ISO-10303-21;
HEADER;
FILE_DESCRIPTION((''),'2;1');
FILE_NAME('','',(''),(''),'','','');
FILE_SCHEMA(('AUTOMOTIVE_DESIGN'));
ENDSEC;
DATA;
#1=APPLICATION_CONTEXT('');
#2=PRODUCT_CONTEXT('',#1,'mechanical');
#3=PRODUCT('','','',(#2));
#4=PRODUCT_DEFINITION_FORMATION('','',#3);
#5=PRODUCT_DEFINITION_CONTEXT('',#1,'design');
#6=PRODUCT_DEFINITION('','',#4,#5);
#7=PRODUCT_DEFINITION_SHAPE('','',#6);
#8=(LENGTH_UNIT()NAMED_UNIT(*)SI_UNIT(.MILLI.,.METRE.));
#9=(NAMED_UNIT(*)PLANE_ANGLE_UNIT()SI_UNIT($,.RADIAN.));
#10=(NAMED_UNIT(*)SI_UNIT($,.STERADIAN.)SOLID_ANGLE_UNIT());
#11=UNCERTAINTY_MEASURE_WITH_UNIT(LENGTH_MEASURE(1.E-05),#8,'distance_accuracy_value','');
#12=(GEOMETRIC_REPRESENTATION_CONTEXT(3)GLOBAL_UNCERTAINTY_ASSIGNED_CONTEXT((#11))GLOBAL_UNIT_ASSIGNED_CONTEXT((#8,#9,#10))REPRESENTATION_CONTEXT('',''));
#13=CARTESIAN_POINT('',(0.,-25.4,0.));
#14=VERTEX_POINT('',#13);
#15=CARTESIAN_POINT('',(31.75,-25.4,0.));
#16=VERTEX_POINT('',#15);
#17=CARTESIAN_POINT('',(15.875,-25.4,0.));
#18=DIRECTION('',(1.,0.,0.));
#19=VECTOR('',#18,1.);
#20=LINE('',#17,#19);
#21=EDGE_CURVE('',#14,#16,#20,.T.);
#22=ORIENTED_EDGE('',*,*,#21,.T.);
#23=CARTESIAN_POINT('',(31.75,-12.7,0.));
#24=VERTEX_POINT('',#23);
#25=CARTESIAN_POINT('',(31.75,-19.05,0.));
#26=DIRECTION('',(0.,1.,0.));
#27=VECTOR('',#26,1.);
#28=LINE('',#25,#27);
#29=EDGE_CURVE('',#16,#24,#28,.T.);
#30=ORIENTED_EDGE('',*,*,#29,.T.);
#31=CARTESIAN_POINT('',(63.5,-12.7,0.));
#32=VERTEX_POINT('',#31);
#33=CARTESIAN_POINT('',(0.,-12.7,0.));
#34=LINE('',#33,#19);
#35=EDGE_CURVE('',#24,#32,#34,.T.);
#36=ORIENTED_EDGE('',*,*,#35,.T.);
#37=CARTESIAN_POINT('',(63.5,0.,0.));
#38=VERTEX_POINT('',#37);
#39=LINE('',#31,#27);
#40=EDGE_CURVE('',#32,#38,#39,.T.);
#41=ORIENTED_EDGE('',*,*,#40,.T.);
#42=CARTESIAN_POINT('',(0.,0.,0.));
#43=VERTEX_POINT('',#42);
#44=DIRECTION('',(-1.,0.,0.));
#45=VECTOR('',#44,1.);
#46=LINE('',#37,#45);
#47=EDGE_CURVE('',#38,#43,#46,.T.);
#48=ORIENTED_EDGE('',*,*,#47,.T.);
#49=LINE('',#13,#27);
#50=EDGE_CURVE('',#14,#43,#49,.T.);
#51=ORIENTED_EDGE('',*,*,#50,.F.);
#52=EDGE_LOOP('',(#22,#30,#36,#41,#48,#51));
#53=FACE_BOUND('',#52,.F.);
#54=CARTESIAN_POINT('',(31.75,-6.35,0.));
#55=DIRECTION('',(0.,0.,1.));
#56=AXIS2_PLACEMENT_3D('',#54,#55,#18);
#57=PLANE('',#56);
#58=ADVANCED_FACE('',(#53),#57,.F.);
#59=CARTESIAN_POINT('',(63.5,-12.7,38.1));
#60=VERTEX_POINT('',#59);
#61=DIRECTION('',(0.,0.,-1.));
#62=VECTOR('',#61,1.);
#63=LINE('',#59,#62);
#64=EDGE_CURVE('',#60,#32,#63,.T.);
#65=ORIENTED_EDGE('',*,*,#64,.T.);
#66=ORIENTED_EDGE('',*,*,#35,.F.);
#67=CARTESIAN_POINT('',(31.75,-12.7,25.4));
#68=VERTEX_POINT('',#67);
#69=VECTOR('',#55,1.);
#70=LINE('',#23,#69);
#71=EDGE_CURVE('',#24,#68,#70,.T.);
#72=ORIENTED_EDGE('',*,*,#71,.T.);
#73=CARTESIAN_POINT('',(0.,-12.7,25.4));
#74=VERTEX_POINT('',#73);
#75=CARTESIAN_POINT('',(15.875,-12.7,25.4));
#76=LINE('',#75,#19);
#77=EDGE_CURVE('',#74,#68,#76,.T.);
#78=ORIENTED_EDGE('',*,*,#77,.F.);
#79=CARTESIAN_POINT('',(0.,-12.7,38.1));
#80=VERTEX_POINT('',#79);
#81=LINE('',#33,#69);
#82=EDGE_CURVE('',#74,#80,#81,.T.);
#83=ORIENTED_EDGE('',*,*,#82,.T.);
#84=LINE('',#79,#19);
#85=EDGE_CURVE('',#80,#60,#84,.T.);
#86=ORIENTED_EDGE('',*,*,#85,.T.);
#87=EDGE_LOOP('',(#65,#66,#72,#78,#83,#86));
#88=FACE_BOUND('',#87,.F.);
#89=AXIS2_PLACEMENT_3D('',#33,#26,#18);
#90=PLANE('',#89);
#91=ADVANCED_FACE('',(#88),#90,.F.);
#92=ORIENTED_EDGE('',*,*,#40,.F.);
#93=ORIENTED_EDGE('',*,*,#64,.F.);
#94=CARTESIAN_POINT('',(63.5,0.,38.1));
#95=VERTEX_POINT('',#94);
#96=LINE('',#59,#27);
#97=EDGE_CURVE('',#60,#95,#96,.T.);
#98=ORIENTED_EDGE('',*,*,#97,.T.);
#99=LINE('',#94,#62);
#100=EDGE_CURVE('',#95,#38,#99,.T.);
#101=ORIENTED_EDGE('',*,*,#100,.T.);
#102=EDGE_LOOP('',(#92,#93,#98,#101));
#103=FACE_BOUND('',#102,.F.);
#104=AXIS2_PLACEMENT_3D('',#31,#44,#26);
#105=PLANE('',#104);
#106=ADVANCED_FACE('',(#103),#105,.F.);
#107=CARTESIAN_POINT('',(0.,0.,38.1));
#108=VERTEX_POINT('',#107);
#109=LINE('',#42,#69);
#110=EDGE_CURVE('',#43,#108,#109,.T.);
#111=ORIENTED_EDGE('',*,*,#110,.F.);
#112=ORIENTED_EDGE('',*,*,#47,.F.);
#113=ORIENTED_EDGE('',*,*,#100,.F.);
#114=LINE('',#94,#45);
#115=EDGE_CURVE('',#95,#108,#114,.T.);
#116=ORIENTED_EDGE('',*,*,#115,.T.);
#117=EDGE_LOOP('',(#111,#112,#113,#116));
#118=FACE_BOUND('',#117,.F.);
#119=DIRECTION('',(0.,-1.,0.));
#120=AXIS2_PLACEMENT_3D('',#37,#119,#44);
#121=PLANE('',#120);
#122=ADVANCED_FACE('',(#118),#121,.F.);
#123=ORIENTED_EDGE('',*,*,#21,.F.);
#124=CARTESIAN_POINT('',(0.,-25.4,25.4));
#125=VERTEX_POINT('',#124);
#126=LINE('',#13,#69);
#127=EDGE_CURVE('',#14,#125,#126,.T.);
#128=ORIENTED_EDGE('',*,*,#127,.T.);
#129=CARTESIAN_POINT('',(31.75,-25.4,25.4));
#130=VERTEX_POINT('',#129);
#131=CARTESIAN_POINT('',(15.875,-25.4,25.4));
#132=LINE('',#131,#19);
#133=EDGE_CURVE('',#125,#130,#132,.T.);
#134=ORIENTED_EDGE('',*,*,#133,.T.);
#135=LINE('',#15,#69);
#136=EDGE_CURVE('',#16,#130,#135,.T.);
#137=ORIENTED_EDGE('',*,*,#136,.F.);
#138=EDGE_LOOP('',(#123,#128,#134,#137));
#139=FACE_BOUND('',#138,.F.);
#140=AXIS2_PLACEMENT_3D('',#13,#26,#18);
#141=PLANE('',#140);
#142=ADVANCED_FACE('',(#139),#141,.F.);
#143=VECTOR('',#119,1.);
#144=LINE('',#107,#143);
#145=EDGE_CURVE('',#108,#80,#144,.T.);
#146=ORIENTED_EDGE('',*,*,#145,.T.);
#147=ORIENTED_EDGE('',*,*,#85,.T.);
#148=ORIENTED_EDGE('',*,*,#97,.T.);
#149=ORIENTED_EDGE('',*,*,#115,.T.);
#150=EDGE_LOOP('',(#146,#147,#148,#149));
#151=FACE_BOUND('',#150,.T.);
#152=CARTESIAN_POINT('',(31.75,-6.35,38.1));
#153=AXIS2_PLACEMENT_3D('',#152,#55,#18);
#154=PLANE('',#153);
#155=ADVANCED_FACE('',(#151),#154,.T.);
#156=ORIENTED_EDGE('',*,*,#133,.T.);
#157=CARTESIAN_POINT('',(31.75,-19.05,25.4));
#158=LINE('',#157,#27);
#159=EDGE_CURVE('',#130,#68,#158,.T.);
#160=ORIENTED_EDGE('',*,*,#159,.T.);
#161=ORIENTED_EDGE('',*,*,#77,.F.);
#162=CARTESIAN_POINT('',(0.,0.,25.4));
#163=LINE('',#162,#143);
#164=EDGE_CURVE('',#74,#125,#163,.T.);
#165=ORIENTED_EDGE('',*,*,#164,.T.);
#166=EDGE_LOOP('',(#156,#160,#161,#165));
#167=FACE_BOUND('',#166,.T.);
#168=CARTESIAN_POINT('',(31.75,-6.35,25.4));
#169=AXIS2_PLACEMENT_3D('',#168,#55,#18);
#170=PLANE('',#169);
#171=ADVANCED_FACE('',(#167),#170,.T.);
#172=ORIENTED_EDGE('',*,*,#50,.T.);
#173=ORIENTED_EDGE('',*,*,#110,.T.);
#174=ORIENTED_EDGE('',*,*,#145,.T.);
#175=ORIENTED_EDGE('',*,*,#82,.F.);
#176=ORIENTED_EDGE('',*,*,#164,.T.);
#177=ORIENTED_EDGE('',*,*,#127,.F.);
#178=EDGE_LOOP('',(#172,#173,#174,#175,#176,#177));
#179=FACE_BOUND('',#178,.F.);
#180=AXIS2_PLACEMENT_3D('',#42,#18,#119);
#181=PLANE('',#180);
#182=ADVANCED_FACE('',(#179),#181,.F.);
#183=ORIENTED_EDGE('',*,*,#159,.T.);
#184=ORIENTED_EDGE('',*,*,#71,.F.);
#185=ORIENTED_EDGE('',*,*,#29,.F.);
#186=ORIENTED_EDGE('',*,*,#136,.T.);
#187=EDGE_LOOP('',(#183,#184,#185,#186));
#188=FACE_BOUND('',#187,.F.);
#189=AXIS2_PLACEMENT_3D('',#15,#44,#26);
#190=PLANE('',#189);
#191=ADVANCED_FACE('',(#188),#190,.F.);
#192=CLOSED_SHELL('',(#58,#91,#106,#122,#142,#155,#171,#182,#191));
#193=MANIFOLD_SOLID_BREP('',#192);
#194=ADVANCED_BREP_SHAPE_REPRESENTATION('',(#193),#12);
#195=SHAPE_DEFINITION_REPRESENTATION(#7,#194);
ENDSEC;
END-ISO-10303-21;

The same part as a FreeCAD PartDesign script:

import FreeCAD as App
import Part
import Sketcher

V = App.Vector
Q = App.Units.Quantity

doc = App.newDocument("Part")
body = doc.addObject("PartDesign::Body", "Body")

# Sketch on XY plane
sketch1 = body.newObject("Sketcher::SketchObject", "Sketch")
sketch1.AttachmentSupport = (doc.getObject("XY_Plane"), [""])
sketch1.MapMode = "FlatFace"
sketch1.addGeometry([
    Part.LineSegment(V(64, 0, 0), V(0, 0, 0)),
    Part.LineSegment(V(0, 0, 0), V(0, -13, 0)),
    Part.LineSegment(V(0, -13, 0), V(64, -13, 0)),
    Part.LineSegment(V(64, -13, 0), V(64, 0, 0)),
], False)
sketch1.addConstraint([
    Sketcher.Constraint("Coincident", 0, 2, 1, 1),
    Sketcher.Constraint("Coincident", 1, 2, 2, 1),
    Sketcher.Constraint("Coincident", 2, 2, 3, 1),
    Sketcher.Constraint("Coincident", 3, 2, 0, 1),
    Sketcher.Constraint("Horizontal", 0),
    Sketcher.Constraint("Vertical", 1),
    Sketcher.Constraint("Horizontal", 2),
    Sketcher.Constraint("Vertical", 3),
    Sketcher.Constraint("Coincident", 0, 2, -1, 1),
    Sketcher.Constraint("DistanceX", 0, 2, 0, 1, Q("2.5 in")),
    Sketcher.Constraint("DistanceY", 1, 2, 1, 1, Q("0.5 in")),
])
pad1 = body.newObject("PartDesign::Pad", "Pad")
pad1.Profile = sketch1
pad1.Length = Q("1.5 in")

# Sketch on XY plane
sketch2 = body.newObject("Sketcher::SketchObject", "Sketch001")
sketch2.AttachmentSupport = (doc.getObject("XY_Plane"), [""])
sketch2.MapMode = "FlatFace"
sketch2.addGeometry([
    Part.LineSegment(V(64, 0, 0), V(0, 0, 0)),  # 0
    Part.LineSegment(V(0, 0, 0), V(0, -25, 0)),  # 1
    Part.LineSegment(V(0, -25, 0), V(32, -25, 0)),  # 2
    Part.LineSegment(V(32, -25, 0), V(32, -13, 0)),  # 3
    Part.LineSegment(V(32, -13, 0), V(64, -13, 0)),  # 4
    Part.LineSegment(V(64, -13, 0), V(64, 0, 0)),  # 5
], False)
sketch2.addConstraint([
    Sketcher.Constraint("Coincident", 0, 2, 1, 1),
    Sketcher.Constraint("Coincident", 1, 2, 2, 1),
    Sketcher.Constraint("Coincident", 2, 2, 3, 1),
    Sketcher.Constraint("Coincident", 3, 2, 4, 1),
    Sketcher.Constraint("Coincident", 4, 2, 5, 1),
    Sketcher.Constraint("Coincident", 5, 2, 0, 1),
    Sketcher.Constraint("Horizontal", 0),
    Sketcher.Constraint("Vertical", 1),
    Sketcher.Constraint("Horizontal", 2),
    Sketcher.Constraint("Vertical", 3),
    Sketcher.Constraint("Horizontal", 4),
    Sketcher.Constraint("Vertical", 5),
    Sketcher.Constraint("Coincident", 0, 2, -1, 1),
    Sketcher.Constraint("Equal", 2, 4),
    Sketcher.Constraint("Equal", 3, 5),
    Sketcher.Constraint("DistanceY", 1, 2, 1, 1, Q("1 in")),
    Sketcher.Constraint("DistanceX", 0, 2, 0, 1, Q("2.5 in")),
])
pad2 = body.newObject("PartDesign::Pad", "Pad001")
pad2.Profile = sketch2
pad2.Length = Q("1 in")

doc.recompute()
